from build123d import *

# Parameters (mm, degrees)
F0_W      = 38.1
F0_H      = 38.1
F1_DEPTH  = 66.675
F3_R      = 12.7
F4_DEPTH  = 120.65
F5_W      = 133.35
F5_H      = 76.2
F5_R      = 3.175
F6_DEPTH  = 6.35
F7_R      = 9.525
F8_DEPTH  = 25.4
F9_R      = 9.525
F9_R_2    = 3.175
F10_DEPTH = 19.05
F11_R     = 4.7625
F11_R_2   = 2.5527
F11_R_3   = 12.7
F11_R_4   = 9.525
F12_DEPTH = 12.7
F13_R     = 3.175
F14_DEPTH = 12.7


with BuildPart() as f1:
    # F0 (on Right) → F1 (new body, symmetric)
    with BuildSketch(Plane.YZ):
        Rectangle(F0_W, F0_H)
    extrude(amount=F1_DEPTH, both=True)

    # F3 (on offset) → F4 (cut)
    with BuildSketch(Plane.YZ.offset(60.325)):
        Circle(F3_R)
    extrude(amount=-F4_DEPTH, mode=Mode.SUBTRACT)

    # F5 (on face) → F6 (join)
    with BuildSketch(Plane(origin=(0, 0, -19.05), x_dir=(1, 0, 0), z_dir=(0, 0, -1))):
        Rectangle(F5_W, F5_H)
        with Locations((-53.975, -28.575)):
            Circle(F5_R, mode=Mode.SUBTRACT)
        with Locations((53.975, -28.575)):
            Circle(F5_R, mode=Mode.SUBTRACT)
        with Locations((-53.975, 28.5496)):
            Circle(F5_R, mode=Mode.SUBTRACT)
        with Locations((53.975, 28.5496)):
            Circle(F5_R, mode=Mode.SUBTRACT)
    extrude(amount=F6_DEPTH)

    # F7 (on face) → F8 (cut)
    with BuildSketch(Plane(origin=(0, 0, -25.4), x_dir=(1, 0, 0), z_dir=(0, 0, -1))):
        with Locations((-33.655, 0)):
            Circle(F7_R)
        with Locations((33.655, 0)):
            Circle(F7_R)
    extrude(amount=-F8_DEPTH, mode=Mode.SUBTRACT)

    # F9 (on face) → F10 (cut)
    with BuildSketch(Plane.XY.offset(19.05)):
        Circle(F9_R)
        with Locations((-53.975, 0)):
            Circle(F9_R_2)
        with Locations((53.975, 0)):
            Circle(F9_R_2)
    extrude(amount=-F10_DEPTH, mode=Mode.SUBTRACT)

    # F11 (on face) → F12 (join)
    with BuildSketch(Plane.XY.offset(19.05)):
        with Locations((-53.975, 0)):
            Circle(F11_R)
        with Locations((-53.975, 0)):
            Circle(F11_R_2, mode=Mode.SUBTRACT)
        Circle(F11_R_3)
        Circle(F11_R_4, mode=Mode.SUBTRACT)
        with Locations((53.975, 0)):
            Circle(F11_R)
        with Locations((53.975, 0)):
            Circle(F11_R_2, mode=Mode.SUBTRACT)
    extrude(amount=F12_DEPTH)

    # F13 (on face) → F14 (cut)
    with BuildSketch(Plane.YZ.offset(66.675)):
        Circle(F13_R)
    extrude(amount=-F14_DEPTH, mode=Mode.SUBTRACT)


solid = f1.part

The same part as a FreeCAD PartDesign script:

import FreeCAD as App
import Part
import Sketcher
Q = App.Units.Quantity


def add_polygon(sketch, points):
    """Adds a closed chain of lines whose ends are joined by coincident constraints."""
    first, n = sketch.GeometryCount, len(points)
    for a, b in zip(points, points[1:] + points[:1]):
        sketch.addGeometry(Part.LineSegment(App.Vector(*a, 0), App.Vector(*b, 0)), False)
    for i in range(n):
        sketch.addConstraint(Sketcher.Constraint("Coincident", first + i, 2, first + (i + 1) % n, 1))

doc = App.newDocument("Part")
params = doc.addObject("Spreadsheet::Sheet", "Params")
for row, (alias, value) in enumerate([
    ("sketch1_width", "1.5 in"),
    ("pad1_length", "5.25 in"),
    ("sketch2_diameter", "1 in"),
    ("pocket1_length", "4.75 in"),
    ("sketch3_diameter", "0.25 in"),
    ("sketch3_height", "3 in"),
    ("sketch3_width", "5.25 in"),
    ("pad2_length", "0.25 in"),
    ("sketch4_diameter", "0.75 in"),
    ("pocket2_length", "1 in"),
    ("sketch5_diameter", "0.75 in"),
    ("sketch5_diameter2", "0.25 in"),
    ("pocket3_length", "0.75 in"),
    ("sketch6_diameter", "1 in"),
    ("sketch6_diameter2", "0.75 in"),
    ("sketch6_diameter3", "0.375 in"),
    ("sketch6_diameter4", "0.201 in"),
    ("pad3_length", "0.5 in"),
    ("sketch7_diameter", "0.25 in"),
    ("pocket4_length", "0.5 in"),
], start=1):
    params.set(f"A{row}", alias)
    params.set(f"B{row}", "=" + value)
    params.setAlias(f"B{row}", alias)

body = doc.addObject("PartDesign::Body", "Body")

# Sketch on YZ plane
sketch1 = body.newObject("Sketcher::SketchObject", "Sketch")
sketch1.AttachmentSupport = (doc.getObject("YZ_Plane"), [""])
sketch1.MapMode = "FlatFace"
add_polygon(sketch1, [(-19.05, 19.05), (-19.05, -19.05), (19.05, -19.05), (19.05, 19.05)])  # lines 0-3
sketch1.addConstraint(Sketcher.Constraint("Vertical", 0))
sketch1.addConstraint(Sketcher.Constraint("Horizontal", 1))
sketch1.addConstraint(Sketcher.Constraint("Vertical", 2))
sketch1.addConstraint(Sketcher.Constraint("Horizontal", 3))
sketch1.addConstraint(Sketcher.Constraint("Symmetric", 0, 2, 2, 2, -1, 1))
sketch1.addConstraint(Sketcher.Constraint("Equal", 3, 0))
sketch1.addConstraint(Sketcher.Constraint("DistanceX", 1, 1, 1, 2, Q("1.5 in")))
sketch1.setExpression("Constraints[10]", "Params.sketch1_width")
pad1 = body.newObject("PartDesign::Pad", "Pad")
pad1.Profile = sketch1
pad1.setExpression("Length", "Params.pad1_length")
pad1.Midplane = True

# Sketch on YZ plane
sketch2 = body.newObject("Sketcher::SketchObject", "Sketch001")
sketch2.AttachmentSupport = (doc.getObject("YZ_Plane"), [""])
sketch2.MapMode = "FlatFace"
sketch2.AttachmentOffset = App.Placement(App.Vector(0, 0, 2.375 * 25.4), App.Rotation())
sketch2.addGeometry(Part.Circle(App.Vector(0, 0, 0), App.Vector(0, 0, 1), 12.7), False)
sketch2.addConstraint(Sketcher.Constraint("Coincident", 0, 3, -1, 1))
sketch2.addConstraint(Sketcher.Constraint("Diameter", 0, Q("1 in")))
sketch2.setExpression("Constraints[1]", "Params.sketch2_diameter")
pocket1 = body.newObject("PartDesign::Pocket", "Pocket")
pocket1.Profile = sketch2
pocket1.setExpression("Length", "Params.pocket1_length")

# Sketch on XY plane
sketch3 = body.newObject("Sketcher::SketchObject", "Sketch002")
sketch3.AttachmentSupport = (doc.getObject("XY_Plane"), [""])
sketch3.MapMode = "FlatFace"
sketch3.AttachmentOffset = App.Placement(App.Vector(0, 0, -0.75 * 25.4), App.Rotation())
add_polygon(sketch3, [(-66.675, -38.1), (-66.675, 38.1), (66.675, 38.1), (66.675, -38.1)])  # lines 0-3
sketch3.addGeometry(Part.Circle(App.Vector(-53.975, 28.575, 0), App.Vector(0, 0, 1), 3.175), False)  # 4
sketch3.addGeometry(Part.Circle(App.Vector(53.975, 28.575, 0), App.Vector(0, 0, 1), 3.175), False)  # 5
sketch3.addGeometry(Part.Circle(App.Vector(-53.975, -28.5496, 0), App.Vector(0, 0, 1), 3.175), False)  # 6
sketch3.addGeometry(Part.Circle(App.Vector(53.975, -28.5496, 0), App.Vector(0, 0, 1), 3.175), False)  # 7
sketch3.addConstraint(Sketcher.Constraint("Vertical", 0))
sketch3.addConstraint(Sketcher.Constraint("Horizontal", 1))
sketch3.addConstraint(Sketcher.Constraint("Vertical", 2))
sketch3.addConstraint(Sketcher.Constraint("Horizontal", 3))
sketch3.addConstraint(Sketcher.Constraint("Equal", 4, 5))
sketch3.addConstraint(Sketcher.Constraint("Equal", 5, 6))
sketch3.addConstraint(Sketcher.Constraint("Equal", 6, 7))
sketch3.addConstraint(Sketcher.Constraint("Symmetric", 0, 2, 2, 2, -1, 1))
sketch3.addConstraint(Sketcher.Constraint("Symmetric", 4, 3, 5, 3, -2))
sketch3.addConstraint(Sketcher.Constraint("Symmetric", 6, 3, 7, 3, -2))
sketch3.addConstraint(Sketcher.Constraint("Vertical", 4, 3, 6, 3))
sketch3.addConstraint(Sketcher.Constraint("Diameter", 4, Q("0.25 in")))
sketch3.addConstraint(Sketcher.Constraint("DistanceY", 0, 1, 0, 2, Q("3 in")))
sketch3.addConstraint(Sketcher.Constraint("DistanceX", 1, 1, 1, 2, Q("5.25 in")))
sketch3.addConstraint(Sketcher.Constraint("DistanceX", 0, 2, 4, 3, Q("0.5 in")))
sketch3.addConstraint(Sketcher.Constraint("DistanceY", -1, 1, 4, 3, Q("1.125 in")))
sketch3.addConstraint(Sketcher.Constraint("DistanceY", 6, 3, -1, 1, Q("1.124 in")))
sketch3.setExpression("Constraints[15]", "Params.sketch3_diameter")
sketch3.setExpression("Constraints[16]", "Params.sketch3_height")
sketch3.setExpression("Constraints[17]", "Params.sketch3_width")
pad2 = body.newObject("PartDesign::Pad", "Pad001")
pad2.Profile = sketch3
pad2.setExpression("Length", "Params.pad2_length")
pad2.Reversed = True

# Sketch on XY plane
sketch4 = body.newObject("Sketcher::SketchObject", "Sketch003")
sketch4.AttachmentSupport = (doc.getObject("XY_Plane"), [""])
sketch4.MapMode = "FlatFace"
sketch4.AttachmentOffset = App.Placement(App.Vector(0, 0, -1 * 25.4), App.Rotation())
sketch4.addGeometry(Part.Circle(App.Vector(-33.655, 0, 0), App.Vector(0, 0, 1), 9.525), False)
sketch4.addGeometry(Part.Circle(App.Vector(33.655, 0, 0), App.Vector(0, 0, 1), 9.525), False)
sketch4.addConstraint(Sketcher.Constraint("Equal", 0, 1))
sketch4.addConstraint(Sketcher.Constraint("Symmetric", 0, 3, 1, 3, -1, 1))
sketch4.addConstraint(Sketcher.Constraint("PointOnObject", 0, 3, -1))
sketch4.addConstraint(Sketcher.Constraint("Diameter", 0, Q("0.75 in")))
sketch4.addConstraint(Sketcher.Constraint("DistanceX", 0, 3, 1, 3, Q("2.65 in")))
sketch4.setExpression("Constraints[3]", "Params.sketch4_diameter")
pocket2 = body.newObject("PartDesign::Pocket", "Pocket001")
pocket2.Profile = sketch4
pocket2.setExpression("Length", "Params.pocket2_length")
pocket2.Reversed = True

# Sketch on XY plane
sketch5 = body.newObject("Sketcher::SketchObject", "Sketch004")
sketch5.AttachmentSupport = (doc.getObject("XY_Plane"), [""])
sketch5.MapMode = "FlatFace"
sketch5.AttachmentOffset = App.Placement(App.Vector(0, 0, 0.75 * 25.4), App.Rotation())
sketch5.addGeometry(Part.Circle(App.Vector(0, 0, 0), App.Vector(0, 0, 1), 9.525), False)
sketch5.addGeometry(Part.Circle(App.Vector(-53.975, 0, 0), App.Vector(0, 0, 1), 3.175), False)
sketch5.addGeometry(Part.Circle(App.Vector(53.975, 0, 0), App.Vector(0, 0, 1), 3.175), False)
sketch5.addConstraint(Sketcher.Constraint("Coincident", 0, 3, -1, 1))
sketch5.addConstraint(Sketcher.Constraint("Equal", 1, 2))
sketch5.addConstraint(Sketcher.Constraint("Symmetric", 1, 3, 2, 3, -1, 1))
sketch5.addConstraint(Sketcher.Constraint("PointOnObject", 1, 3, -1))
sketch5.addConstraint(Sketcher.Constraint("Diameter", 0, Q("0.75 in")))
sketch5.addConstraint(Sketcher.Constraint("Diameter", 1, Q("0.25 in")))
sketch5.addConstraint(Sketcher.Constraint("DistanceX", 1, 3, 2, 3, Q("4.25 in")))
sketch5.setExpression("Constraints[4]", "Params.sketch5_diameter")
sketch5.setExpression("Constraints[5]", "Params.sketch5_diameter2")
pocket3 = body.newObject("PartDesign::Pocket", "Pocket002")
pocket3.Profile = sketch5
pocket3.setExpression("Length", "Params.pocket3_length")

# Sketch on XY plane
sketch6 = body.newObject("Sketcher::SketchObject", "Sketch005")
sketch6.AttachmentSupport = (doc.getObject("XY_Plane"), [""])
sketch6.MapMode = "FlatFace"
sketch6.AttachmentOffset = App.Placement(App.Vector(0, 0, 0.75 * 25.4), App.Rotation())
sketch6.addGeometry(Part.Circle(App.Vector(-53.975, 0, 0), App.Vector(0, 0, 1), 4.7625), False)
sketch6.addGeometry(Part.Circle(App.Vector(-53.975, 0, 0), App.Vector(0, 0, 1), 2.5527), False)
sketch6.addGeometry(Part.Circle(App.Vector(0, 0, 0), App.Vector(0, 0, 1), 12.7), False)
sketch6.addGeometry(Part.Circle(App.Vector(0, 0, 0), App.Vector(0, 0, 1), 9.525), False)
sketch6.addGeometry(Part.Circle(App.Vector(53.975, 0, 0), App.Vector(0, 0, 1), 4.7625), False)
sketch6.addGeometry(Part.Circle(App.Vector(53.975, 0, 0), App.Vector(0, 0, 1), 2.5527), False)
sketch6.addConstraint(Sketcher.Constraint("Coincident", 2, 3, -1, 1))
sketch6.addConstraint(Sketcher.Constraint("Coincident", 3, 3, -1, 1))
sketch6.addConstraint(Sketcher.Constraint("Coincident", 1, 3, 0, 3))
sketch6.addConstraint(Sketcher.Constraint("Coincident", 5, 3, 4, 3))
sketch6.addConstraint(Sketcher.Constraint("Equal", 0, 4))
sketch6.addConstraint(Sketcher.Constraint("Equal", 1, 5))
sketch6.addConstraint(Sketcher.Constraint("Symmetric", 0, 3, 4, 3, -1, 1))
sketch6.addConstraint(Sketcher.Constraint("PointOnObject", 0, 3, -1))
sketch6.addConstraint(Sketcher.Constraint("Diameter", 2, Q("1 in")))
sketch6.addConstraint(Sketcher.Constraint("Diameter", 3, Q("0.75 in")))
sketch6.addConstraint(Sketcher.Constraint("Diameter", 0, Q("0.375 in")))
sketch6.addConstraint(Sketcher.Constraint("Diameter", 1, Q("0.201 in")))
sketch6.addConstraint(Sketcher.Constraint("DistanceX", 0, 3, 4, 3, Q("4.25 in")))
sketch6.setExpression("Constraints[8]", "Params.sketch6_diameter")
sketch6.setExpression("Constraints[9]", "Params.sketch6_diameter2")
sketch6.setExpression("Constraints[10]", "Params.sketch6_diameter3")
sketch6.setExpression("Constraints[11]", "Params.sketch6_diameter4")
pad3 = body.newObject("PartDesign::Pad", "Pad002")
pad3.Profile = sketch6
pad3.setExpression("Length", "Params.pad3_length")

# Sketch on YZ plane
sketch7 = body.newObject("Sketcher::SketchObject", "Sketch006")
sketch7.AttachmentSupport = (doc.getObject("YZ_Plane"), [""])
sketch7.MapMode = "FlatFace"
sketch7.AttachmentOffset = App.Placement(App.Vector(0, 0, 2.625 * 25.4), App.Rotation())
sketch7.addGeometry(Part.Circle(App.Vector(0, 0, 0), App.Vector(0, 0, 1), 3.175), False)
sketch7.addConstraint(Sketcher.Constraint("Coincident", 0, 3, -1, 1))
sketch7.addConstraint(Sketcher.Constraint("Diameter", 0, Q("0.25 in")))
sketch7.setExpression("Constraints[1]", "Params.sketch7_diameter")
pocket4 = body.newObject("PartDesign::Pocket", "Pocket003")
pocket4.Profile = sketch7
pocket4.setExpression("Length", "Params.pocket4_length")

doc.recompute()
